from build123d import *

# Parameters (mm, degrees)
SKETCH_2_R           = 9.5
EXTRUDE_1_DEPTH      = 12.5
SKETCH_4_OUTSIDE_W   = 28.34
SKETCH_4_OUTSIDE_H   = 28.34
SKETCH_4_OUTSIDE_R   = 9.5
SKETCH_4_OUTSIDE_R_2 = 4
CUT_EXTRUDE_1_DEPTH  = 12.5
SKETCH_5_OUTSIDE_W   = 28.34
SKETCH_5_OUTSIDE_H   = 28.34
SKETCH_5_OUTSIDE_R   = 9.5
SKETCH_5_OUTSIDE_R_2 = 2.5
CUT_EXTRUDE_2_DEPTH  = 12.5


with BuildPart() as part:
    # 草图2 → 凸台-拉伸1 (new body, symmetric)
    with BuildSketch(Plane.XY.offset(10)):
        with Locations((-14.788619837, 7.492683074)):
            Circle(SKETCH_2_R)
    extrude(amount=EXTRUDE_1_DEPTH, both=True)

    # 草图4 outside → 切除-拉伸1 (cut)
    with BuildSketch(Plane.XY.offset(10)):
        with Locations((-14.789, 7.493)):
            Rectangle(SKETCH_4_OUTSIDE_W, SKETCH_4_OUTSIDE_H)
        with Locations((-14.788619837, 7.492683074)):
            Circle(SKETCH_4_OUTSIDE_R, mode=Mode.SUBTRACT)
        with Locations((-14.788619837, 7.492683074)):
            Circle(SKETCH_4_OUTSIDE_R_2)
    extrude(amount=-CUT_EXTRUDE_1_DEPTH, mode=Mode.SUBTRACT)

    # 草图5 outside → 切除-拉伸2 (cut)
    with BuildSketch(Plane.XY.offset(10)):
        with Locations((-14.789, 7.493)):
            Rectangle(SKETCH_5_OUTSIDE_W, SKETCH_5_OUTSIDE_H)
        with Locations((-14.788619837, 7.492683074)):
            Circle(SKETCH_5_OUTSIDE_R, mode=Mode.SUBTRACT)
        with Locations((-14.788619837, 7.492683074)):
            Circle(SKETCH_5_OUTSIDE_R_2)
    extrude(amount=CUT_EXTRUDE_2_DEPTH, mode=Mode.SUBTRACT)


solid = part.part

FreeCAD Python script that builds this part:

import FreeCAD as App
import Part
import Sketcher
from FreeCAD import Vector
Q = App.Units.Quantity

doc = App.newDocument("Part")
params = doc.addObject("Spreadsheet::Sheet", "Params")
for row, (alias, value) in enumerate([
    ("sketch1_diameter", "19 mm"),
    ("pad1_length", "25 mm"),
    ("sketch2_diameter", "19 mm"),
    ("sketch2_diameter2", "8 mm"),
    ("sketch2_width", "28.34 mm"),
    ("pocket1_length", "12.5 mm"),
    ("sketch3_diameter", "19 mm"),
    ("sketch3_diameter2", "5 mm"),
    ("sketch3_width", "28.34 mm"),
    ("pocket2_length", "12.5 mm"),
], start=1):
    params.set(f"A{row}", alias)
    params.set(f"B{row}", "=" + value)
    params.setAlias(f"B{row}", alias)

body = doc.addObject("PartDesign::Body", "Body")

sketch1 = body.newObject("Sketcher::SketchObject", "Sketch")
sketch1.AttachmentSupport = (doc.getObject("XY_Plane"), [""])
sketch1.MapMode = "FlatFace"
sketch1.AttachmentOffset = App.Placement(Vector(0, 0, 10), App.Rotation())
sketch1.addGeometry(Part.Circle(Vector(-14.78862, 7.492683, 0), Vector(0, 0, 1), 9.5), False)
sketch1.addConstraint([
    Sketcher.Constraint("Diameter", 0, Q("19 mm")),
    Sketcher.Constraint("DistanceX", 0, 3, -1, 1, Q("14.78862 mm")),
    Sketcher.Constraint("DistanceY", -1, 1, 0, 3, Q("7.492683 mm")),
])
sketch1.setExpression("Constraints[0]", "Params.sketch1_diameter")
pad1 = body.newObject("PartDesign::Pad", "Pad")
pad1.Profile = sketch1
pad1.setExpression("Length", "Params.pad1_length")
pad1.Midplane = True

sketch2 = body.newObject("Sketcher::SketchObject", "Sketch001")
sketch2.AttachmentSupport = (doc.getObject("XY_Plane"), [""])
sketch2.MapMode = "FlatFace"
sketch2.AttachmentOffset = App.Placement(Vector(0, 0, 10), App.Rotation())
sketch2.addGeometry([
    Part.LineSegment(Vector(-28.959, 21.663, 0), Vector(-28.959, -6.677, 0)),
    Part.LineSegment(Vector(-28.959, -6.677, 0), Vector(-0.619, -6.677, 0)),
    Part.LineSegment(Vector(-0.619, -6.677, 0), Vector(-0.619, 21.663, 0)),
    Part.LineSegment(Vector(-0.619, 21.663, 0), Vector(-28.959, 21.663, 0)),
    Part.Circle(Vector(-14.78862, 7.492683, 0), Vector(0, 0, 1), 9.5),
    Part.Circle(Vector(-14.78862, 7.492683, 0), Vector(0, 0, 1), 4),
], False)
sketch2.addConstraint([
    Sketcher.Constraint("Coincident", 0, 2, 1, 1),
    Sketcher.Constraint("Coincident", 1, 2, 2, 1),
    Sketcher.Constraint("Coincident", 2, 2, 3, 1),
    Sketcher.Constraint("Coincident", 3, 2, 0, 1),
    Sketcher.Constraint("Vertical", 0),
    Sketcher.Constraint("Horizontal", 1),
    Sketcher.Constraint("Vertical", 2),
    Sketcher.Constraint("Horizontal", 3),
    Sketcher.Constraint("Coincident", 5, 3, 4, 3),
    Sketcher.Constraint("Equal", 3, 0),
    Sketcher.Constraint("Diameter", 4, Q("19 mm")),
    Sketcher.Constraint("Diameter", 5, Q("8 mm")),
    Sketcher.Constraint("DistanceX", 1, 1, 1, 2, Q("28.34 mm")),
    Sketcher.Constraint("DistanceX", 0, 2, -1, 1, Q("28.959 mm")),
    Sketcher.Constraint("DistanceY", 0, 2, -1, 1, Q("6.677 mm")),
    Sketcher.Constraint("DistanceX", 4, 3, -1, 1, Q("14.78862 mm")),
    Sketcher.Constraint("DistanceY", -1, 1, 4, 3, Q("7.492683 mm")),
])
sketch2.setExpression("Constraints[10]", "Params.sketch2_diameter")
sketch2.setExpression("Constraints[11]", "Params.sketch2_diameter2")
sketch2.setExpression("Constraints[12]", "Params.sketch2_width")
pocket1 = body.newObject("PartDesign::Pocket", "Pocket")
pocket1.Profile = sketch2
pocket1.setExpression("Length", "Params.pocket1_length")

sketch3 = body.newObject("Sketcher::SketchObject", "Sketch002")
sketch3.AttachmentSupport = (doc.getObject("XY_Plane"), [""])
sketch3.MapMode = "FlatFace"
sketch3.AttachmentOffset = App.Placement(Vector(0, 0, 10), App.Rotation())
sketch3.addGeometry([
    Part.LineSegment(Vector(-28.959, 21.663, 0), Vector(-28.959, -6.677, 0)),
    Part.LineSegment(Vector(-28.959, -6.677, 0), Vector(-0.619, -6.677, 0)),
    Part.LineSegment(Vector(-0.619, -6.677, 0), Vector(-0.619, 21.663, 0)),
    Part.LineSegment(Vector(-0.619, 21.663, 0), Vector(-28.959, 21.663, 0)),
    Part.Circle(Vector(-14.78862, 7.492683, 0), Vector(0, 0, 1), 9.5),
    Part.Circle(Vector(-14.78862, 7.492683, 0), Vector(0, 0, 1), 2.5),
], False)
sketch3.addConstraint([
    Sketcher.Constraint("Coincident", 0, 2, 1, 1),
    Sketcher.Constraint("Coincident", 1, 2, 2, 1),
    Sketcher.Constraint("Coincident", 2, 2, 3, 1),
    Sketcher.Constraint("Coincident", 3, 2, 0, 1),
    Sketcher.Constraint("Vertical", 0),
    Sketcher.Constraint("Horizontal", 1),
    Sketcher.Constraint("Vertical", 2),
    Sketcher.Constraint("Horizontal", 3),
    Sketcher.Constraint("Coincident", 5, 3, 4, 3),
    Sketcher.Constraint("Equal", 3, 0),
    Sketcher.Constraint("Diameter", 4, Q("19 mm")),
    Sketcher.Constraint("Diameter", 5, Q("5 mm")),
    Sketcher.Constraint("DistanceX", 1, 1, 1, 2, Q("28.34 mm")),
    Sketcher.Constraint("DistanceX", 0, 2, -1, 1, Q("28.959 mm")),
    Sketcher.Constraint("DistanceY", 0, 2, -1, 1, Q("6.677 mm")),
    Sketcher.Constraint("DistanceX", 4, 3, -1, 1, Q("14.78862 mm")),
    Sketcher.Constraint("DistanceY", -1, 1, 4, 3, Q("7.492683 mm")),
])
sketch3.setExpression("Constraints[10]", "Params.sketch3_diameter")
sketch3.setExpression("Constraints[11]", "Params.sketch3_diameter2")
sketch3.setExpression("Constraints[12]", "Params.sketch3_width")
pocket2 = body.newObject("PartDesign::Pocket", "Pocket001")
pocket2.Profile = sketch3
pocket2.setExpression("Length", "Params.pocket2_length")
pocket2.Reversed = True

doc.recompute()
